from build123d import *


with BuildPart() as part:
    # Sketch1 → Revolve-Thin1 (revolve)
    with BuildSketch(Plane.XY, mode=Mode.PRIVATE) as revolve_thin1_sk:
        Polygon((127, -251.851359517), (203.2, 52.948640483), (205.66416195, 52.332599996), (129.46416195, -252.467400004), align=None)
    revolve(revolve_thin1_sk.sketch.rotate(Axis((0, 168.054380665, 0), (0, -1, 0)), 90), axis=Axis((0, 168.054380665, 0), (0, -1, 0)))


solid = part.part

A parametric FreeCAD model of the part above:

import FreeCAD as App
import Part
import Sketcher
Q = App.Units.Quantity

doc = App.newDocument("Part")
body = doc.addObject("PartDesign::Body", "Body")

sketch1 = body.newObject("Sketcher::SketchObject", "Sketch")
sketch1.AttachmentSupport = (doc.getObject("XY_Plane"), [""])
sketch1.MapMode = "FlatFace"
sketch1.addGeometry([
    Part.LineSegment(App.Vector(203.2, 52.9, 0), App.Vector(127, -251.9, 0)),
    Part.LineSegment(App.Vector(127, -251.9, 0), App.Vector(129.5, -252.5, 0)),
    Part.LineSegment(App.Vector(129.5, -252.5, 0), App.Vector(205.7, 52.3, 0)),
    Part.LineSegment(App.Vector(205.7, 52.3, 0), App.Vector(203.2, 52.9, 0)),
], False)
sketch1.addConstraint([
    Sketcher.Constraint("Coincident", 0, 2, 1, 1),
    Sketcher.Constraint("Coincident", 1, 2, 2, 1),
    Sketcher.Constraint("Coincident", 2, 2, 3, 1),
    Sketcher.Constraint("Coincident", 3, 2, 0, 1),
    Sketcher.Constraint("Perpendicular", 0, 1),
    Sketcher.Constraint("Perpendicular", 1, 2),
    Sketcher.Constraint("Perpendicular", 2, 3),
    Sketcher.Constraint("DistanceX", -1, 1, 0, 2, Q("5 in")),
    Sketcher.Constraint("DistanceX", -1, 1, 3, 2, Q("8 in")),
    Sketcher.Constraint("DistanceY", 1, 2, 2, 2, Q("12 in")),
    Sketcher.Constraint("Distance", 1, Q("0.1 in")),
    Sketcher.Constraint("DistanceY", 1, 2, -1, 1, 252.4674),
])
revolution = body.newObject("PartDesign::Revolution", "Revolution")
revolution.Profile = sketch1
revolution.ReferenceAxis = (sketch1, ["V_Axis"])
revolution.Angle = 360

doc.recompute()
